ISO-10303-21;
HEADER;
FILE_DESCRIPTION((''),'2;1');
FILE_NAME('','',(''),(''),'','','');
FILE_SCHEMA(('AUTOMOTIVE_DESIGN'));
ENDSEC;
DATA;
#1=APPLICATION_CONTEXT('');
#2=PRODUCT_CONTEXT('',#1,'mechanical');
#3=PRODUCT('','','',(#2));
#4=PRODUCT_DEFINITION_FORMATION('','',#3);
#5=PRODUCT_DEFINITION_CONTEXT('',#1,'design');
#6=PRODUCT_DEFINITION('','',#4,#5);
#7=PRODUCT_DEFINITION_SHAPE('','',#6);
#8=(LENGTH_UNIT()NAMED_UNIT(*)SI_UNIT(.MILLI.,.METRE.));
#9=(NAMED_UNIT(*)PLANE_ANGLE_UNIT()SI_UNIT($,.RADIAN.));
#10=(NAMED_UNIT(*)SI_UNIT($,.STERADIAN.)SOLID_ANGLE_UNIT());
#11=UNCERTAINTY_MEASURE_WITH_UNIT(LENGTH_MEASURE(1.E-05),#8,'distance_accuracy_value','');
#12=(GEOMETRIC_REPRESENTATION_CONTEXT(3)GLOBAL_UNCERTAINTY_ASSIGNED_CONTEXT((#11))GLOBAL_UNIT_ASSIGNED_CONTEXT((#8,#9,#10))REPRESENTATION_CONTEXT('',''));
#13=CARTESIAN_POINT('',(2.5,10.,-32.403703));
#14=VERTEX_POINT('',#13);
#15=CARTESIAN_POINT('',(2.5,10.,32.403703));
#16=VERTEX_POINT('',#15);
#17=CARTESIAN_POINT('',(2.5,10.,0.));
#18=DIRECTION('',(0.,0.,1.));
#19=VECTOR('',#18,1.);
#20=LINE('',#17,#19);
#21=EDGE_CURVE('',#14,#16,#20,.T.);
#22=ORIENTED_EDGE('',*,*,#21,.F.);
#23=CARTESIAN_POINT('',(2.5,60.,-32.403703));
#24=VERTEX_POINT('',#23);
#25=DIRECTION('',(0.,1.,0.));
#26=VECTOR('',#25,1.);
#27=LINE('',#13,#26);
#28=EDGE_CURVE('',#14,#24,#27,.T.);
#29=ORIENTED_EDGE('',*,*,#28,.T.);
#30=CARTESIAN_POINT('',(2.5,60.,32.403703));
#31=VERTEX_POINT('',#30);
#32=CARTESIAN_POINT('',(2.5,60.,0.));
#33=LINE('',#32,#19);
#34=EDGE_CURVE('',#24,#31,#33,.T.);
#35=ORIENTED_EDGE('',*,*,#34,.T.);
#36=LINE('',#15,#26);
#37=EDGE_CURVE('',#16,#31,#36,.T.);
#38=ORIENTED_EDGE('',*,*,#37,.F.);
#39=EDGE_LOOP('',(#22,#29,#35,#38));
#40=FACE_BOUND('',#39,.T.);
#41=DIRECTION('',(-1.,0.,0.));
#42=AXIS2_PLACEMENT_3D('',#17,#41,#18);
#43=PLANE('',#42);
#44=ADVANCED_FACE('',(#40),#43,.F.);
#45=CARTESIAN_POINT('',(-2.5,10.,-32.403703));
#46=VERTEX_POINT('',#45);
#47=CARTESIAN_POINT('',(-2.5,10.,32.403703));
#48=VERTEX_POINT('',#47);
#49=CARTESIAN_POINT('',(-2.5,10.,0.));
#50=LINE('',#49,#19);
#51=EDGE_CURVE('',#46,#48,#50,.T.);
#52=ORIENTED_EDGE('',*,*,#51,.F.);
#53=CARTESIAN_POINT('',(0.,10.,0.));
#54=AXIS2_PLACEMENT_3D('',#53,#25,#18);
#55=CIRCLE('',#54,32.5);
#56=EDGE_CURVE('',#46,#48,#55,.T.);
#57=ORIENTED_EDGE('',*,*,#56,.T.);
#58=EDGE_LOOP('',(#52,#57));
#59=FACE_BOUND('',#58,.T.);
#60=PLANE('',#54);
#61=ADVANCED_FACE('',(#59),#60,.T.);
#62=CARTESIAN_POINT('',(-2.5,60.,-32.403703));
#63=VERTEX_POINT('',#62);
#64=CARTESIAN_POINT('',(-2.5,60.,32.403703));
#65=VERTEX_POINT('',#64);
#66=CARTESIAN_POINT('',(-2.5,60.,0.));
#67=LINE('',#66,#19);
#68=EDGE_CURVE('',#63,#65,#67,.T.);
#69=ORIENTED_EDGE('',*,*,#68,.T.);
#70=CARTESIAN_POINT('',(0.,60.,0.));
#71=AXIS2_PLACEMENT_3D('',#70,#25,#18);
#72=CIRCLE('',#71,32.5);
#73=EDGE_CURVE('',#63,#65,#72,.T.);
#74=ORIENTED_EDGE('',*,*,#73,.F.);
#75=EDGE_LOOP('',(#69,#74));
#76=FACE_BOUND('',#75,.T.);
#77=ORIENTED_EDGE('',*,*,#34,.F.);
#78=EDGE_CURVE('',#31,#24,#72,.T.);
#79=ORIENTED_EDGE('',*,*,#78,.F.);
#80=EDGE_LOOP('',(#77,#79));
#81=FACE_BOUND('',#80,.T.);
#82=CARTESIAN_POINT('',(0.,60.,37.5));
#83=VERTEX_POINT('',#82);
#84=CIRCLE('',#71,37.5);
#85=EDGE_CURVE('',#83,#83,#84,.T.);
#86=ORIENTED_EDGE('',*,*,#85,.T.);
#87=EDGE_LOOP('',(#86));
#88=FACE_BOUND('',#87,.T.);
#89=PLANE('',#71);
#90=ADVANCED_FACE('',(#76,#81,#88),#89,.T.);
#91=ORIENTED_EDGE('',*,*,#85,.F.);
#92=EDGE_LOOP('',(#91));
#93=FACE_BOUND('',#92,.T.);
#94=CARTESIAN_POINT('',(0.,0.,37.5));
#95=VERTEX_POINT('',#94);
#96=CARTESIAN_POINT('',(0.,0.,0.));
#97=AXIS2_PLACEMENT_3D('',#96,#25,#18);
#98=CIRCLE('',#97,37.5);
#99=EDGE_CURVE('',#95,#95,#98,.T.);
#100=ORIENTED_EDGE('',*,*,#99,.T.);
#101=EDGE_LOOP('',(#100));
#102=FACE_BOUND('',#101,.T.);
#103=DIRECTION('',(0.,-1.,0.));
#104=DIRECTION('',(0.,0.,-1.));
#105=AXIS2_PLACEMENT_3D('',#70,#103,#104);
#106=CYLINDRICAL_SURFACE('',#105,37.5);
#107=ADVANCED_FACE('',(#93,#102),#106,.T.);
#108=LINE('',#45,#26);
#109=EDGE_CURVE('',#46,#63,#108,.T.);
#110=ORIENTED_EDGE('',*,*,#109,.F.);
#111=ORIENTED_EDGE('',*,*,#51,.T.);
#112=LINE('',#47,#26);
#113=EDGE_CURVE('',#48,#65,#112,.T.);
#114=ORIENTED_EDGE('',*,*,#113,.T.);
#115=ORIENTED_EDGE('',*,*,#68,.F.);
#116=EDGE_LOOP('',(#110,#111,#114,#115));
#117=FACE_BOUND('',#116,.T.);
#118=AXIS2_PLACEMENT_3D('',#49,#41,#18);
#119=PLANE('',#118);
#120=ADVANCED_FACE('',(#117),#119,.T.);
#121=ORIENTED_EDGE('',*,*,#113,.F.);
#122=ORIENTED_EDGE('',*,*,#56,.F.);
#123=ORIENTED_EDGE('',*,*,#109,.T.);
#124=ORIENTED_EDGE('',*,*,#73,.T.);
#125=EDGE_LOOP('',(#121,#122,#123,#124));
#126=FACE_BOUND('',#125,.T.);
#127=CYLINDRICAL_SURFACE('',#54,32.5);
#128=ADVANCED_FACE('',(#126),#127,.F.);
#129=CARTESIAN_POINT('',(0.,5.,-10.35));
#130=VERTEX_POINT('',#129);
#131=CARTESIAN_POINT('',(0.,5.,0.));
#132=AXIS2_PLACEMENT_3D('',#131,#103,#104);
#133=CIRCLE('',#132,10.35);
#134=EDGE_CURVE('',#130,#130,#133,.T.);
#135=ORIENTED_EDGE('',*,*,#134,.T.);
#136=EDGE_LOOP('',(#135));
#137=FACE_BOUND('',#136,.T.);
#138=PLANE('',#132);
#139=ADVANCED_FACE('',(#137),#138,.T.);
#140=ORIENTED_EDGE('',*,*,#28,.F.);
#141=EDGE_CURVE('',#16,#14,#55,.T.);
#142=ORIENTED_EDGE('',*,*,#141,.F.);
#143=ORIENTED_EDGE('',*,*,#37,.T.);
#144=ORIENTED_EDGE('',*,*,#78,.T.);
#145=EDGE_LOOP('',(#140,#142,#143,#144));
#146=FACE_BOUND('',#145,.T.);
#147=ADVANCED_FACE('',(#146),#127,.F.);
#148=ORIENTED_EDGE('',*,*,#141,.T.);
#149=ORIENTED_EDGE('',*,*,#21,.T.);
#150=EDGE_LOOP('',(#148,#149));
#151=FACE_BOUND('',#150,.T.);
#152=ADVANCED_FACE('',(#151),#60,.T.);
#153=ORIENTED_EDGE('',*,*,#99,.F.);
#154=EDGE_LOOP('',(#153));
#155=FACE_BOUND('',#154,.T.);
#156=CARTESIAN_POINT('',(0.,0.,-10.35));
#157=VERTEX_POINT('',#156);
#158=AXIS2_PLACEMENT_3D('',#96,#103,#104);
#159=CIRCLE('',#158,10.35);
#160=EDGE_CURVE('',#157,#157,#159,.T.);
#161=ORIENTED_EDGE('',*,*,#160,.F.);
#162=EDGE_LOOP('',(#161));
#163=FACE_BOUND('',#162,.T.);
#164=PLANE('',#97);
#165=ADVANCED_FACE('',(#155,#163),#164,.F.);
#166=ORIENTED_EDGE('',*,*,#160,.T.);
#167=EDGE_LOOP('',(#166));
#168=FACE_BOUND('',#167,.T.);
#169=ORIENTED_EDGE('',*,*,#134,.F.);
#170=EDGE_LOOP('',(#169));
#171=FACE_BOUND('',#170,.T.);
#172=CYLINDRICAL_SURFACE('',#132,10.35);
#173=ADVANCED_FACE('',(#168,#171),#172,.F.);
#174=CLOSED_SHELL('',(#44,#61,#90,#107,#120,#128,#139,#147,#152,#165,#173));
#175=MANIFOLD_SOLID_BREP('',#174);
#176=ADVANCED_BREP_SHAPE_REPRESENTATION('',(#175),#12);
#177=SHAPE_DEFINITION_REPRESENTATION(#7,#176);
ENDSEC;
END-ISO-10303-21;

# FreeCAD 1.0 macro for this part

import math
import FreeCAD as App
import Part
import Sketcher

V = App.Vector

doc = App.newDocument("Part")
params = doc.addObject("Spreadsheet::Sheet", "Params")
for row, (alias, value) in enumerate([
    ("sketch1_diameter", "75 mm"),
    ("pad1_length", "60 mm"),
    ("sketch2_radius", "32.5 mm"),
    ("pocket1_length", "50 mm"),
    ("sketch3_diameter", "20.7 mm"),
    ("pocket2_length", "5 mm"),
], start=1):
    params.set(f"A{row}", alias)
    params.set(f"B{row}", "=" + value)
    params.setAlias(f"B{row}", alias)

body = doc.addObject("PartDesign::Body", "Body")

# Sketch on XZ plane
sketch1 = body.newObject("Sketcher::SketchObject", "Sketch")
sketch1.AttachmentSupport = (doc.getObject("XZ_Plane"), [""])
sketch1.MapMode = "FlatFace"
sketch1.addGeometry(Part.Circle(V(0, 0, 0), V(0, 0, 1), 37.5), False)
sketch1.addConstraint(Sketcher.Constraint("Coincident", 0, 3, -1, 1))
sketch1.addConstraint(Sketcher.Constraint("Diameter", 0, 75.0))
sketch1.setExpression("Constraints[1]", "Params.sketch1_diameter")
pad1 = body.newObject("PartDesign::Pad", "Pad")
pad1.Profile = sketch1
pad1.setExpression("Length", "Params.pad1_length")
pad1.Reversed = True

# Sketch on XZ plane
sketch2 = body.newObject("Sketcher::SketchObject", "Sketch001")
sketch2.AttachmentSupport = (doc.getObject("XZ_Plane"), [""])
sketch2.MapMode = "FlatFace"
sketch2.AttachmentOffset = App.Placement(V(0, 0, -60), App.Rotation())
sketch2.addGeometry(Part.LineSegment(V(-2.5, 32.403703, 0), V(-2.5, -32.403703, 0)), False)
sketch2.addGeometry(Part.ArcOfCircle(Part.Circle(V(0, 0, 0), V(0, 0, 1), 32.5), math.radians(94.411726), math.radians(265.588274)), False)
sketch2.addGeometry(Part.ArcOfCircle(Part.Circle(V(0, 0, 0), V(0, 0, 1), 32.5), math.radians(-85.588274), math.radians(0)), False)
sketch2.addGeometry(Part.LineSegment(V(2.5, -32.403703, 0), V(2.5, 32.403703, 0)), False)
sketch2.addGeometry(Part.ArcOfCircle(Part.Circle(V(0, 0, 0), V(0, 0, 1), 32.5), math.radians(0), math.radians(85.588274)), False)
sketch2.addConstraint(Sketcher.Constraint("Coincident", 0, 1, 1, 1))
sketch2.addConstraint(Sketcher.Constraint("Coincident", 1, 2, 0, 2))
sketch2.addConstraint(Sketcher.Constraint("Coincident", 2, 1, 3, 1))
sketch2.addConstraint(Sketcher.Constraint("Coincident", 3, 2, 4, 2))
sketch2.addConstraint(Sketcher.Constraint("Tangent", 4, 1, 2, 2))
sketch2.addConstraint(Sketcher.Constraint("Vertical", 0))
sketch2.addConstraint(Sketcher.Constraint("Vertical", 3))
sketch2.addConstraint(Sketcher.Constraint("Coincident", 1, 3, -1, 1))
sketch2.addConstraint(Sketcher.Constraint("Coincident", 2, 3, -1, 1))
sketch2.addConstraint(Sketcher.Constraint("Equal", 1, 2))
sketch2.addConstraint(Sketcher.Constraint("Equal", 2, 4))
sketch2.addConstraint(Sketcher.Constraint("PointOnObject", 4, 1, -1))
sketch2.addConstraint(Sketcher.Constraint("Horizontal", 1, 2, 2, 1))
sketch2.addConstraint(Sketcher.Constraint("Radius", 1, 32.5))
sketch2.addConstraint(Sketcher.Constraint("DistanceX", 1, 2, 2, 1, 5.0))
sketch2.setExpression("Constraints[13]", "Params.sketch2_radius")
pocket1 = body.newObject("PartDesign::Pocket", "Pocket")
pocket1.Profile = sketch2
pocket1.setExpression("Length", "Params.pocket1_length")
pocket1.Reversed = True

# Sketch on XZ plane
sketch3 = body.newObject("Sketcher::SketchObject", "Sketch002")
sketch3.AttachmentSupport = (doc.getObject("XZ_Plane"), [""])
sketch3.MapMode = "FlatFace"
sketch3.addGeometry(Part.Circle(V(0, 0, 0), V(0, 0, 1), 10.35), False)
sketch3.addConstraint(Sketcher.Constraint("Coincident", 0, 3, -1, 1))
sketch3.addConstraint(Sketcher.Constraint("Diameter", 0, 20.7))
sketch3.setExpression("Constraints[1]", "Params.sketch3_diameter")
pocket2 = body.newObject("PartDesign::Pocket", "Pocket001")
pocket2.Profile = sketch3
pocket2.setExpression("Length", "Params.pocket2_length")

doc.recompute()
